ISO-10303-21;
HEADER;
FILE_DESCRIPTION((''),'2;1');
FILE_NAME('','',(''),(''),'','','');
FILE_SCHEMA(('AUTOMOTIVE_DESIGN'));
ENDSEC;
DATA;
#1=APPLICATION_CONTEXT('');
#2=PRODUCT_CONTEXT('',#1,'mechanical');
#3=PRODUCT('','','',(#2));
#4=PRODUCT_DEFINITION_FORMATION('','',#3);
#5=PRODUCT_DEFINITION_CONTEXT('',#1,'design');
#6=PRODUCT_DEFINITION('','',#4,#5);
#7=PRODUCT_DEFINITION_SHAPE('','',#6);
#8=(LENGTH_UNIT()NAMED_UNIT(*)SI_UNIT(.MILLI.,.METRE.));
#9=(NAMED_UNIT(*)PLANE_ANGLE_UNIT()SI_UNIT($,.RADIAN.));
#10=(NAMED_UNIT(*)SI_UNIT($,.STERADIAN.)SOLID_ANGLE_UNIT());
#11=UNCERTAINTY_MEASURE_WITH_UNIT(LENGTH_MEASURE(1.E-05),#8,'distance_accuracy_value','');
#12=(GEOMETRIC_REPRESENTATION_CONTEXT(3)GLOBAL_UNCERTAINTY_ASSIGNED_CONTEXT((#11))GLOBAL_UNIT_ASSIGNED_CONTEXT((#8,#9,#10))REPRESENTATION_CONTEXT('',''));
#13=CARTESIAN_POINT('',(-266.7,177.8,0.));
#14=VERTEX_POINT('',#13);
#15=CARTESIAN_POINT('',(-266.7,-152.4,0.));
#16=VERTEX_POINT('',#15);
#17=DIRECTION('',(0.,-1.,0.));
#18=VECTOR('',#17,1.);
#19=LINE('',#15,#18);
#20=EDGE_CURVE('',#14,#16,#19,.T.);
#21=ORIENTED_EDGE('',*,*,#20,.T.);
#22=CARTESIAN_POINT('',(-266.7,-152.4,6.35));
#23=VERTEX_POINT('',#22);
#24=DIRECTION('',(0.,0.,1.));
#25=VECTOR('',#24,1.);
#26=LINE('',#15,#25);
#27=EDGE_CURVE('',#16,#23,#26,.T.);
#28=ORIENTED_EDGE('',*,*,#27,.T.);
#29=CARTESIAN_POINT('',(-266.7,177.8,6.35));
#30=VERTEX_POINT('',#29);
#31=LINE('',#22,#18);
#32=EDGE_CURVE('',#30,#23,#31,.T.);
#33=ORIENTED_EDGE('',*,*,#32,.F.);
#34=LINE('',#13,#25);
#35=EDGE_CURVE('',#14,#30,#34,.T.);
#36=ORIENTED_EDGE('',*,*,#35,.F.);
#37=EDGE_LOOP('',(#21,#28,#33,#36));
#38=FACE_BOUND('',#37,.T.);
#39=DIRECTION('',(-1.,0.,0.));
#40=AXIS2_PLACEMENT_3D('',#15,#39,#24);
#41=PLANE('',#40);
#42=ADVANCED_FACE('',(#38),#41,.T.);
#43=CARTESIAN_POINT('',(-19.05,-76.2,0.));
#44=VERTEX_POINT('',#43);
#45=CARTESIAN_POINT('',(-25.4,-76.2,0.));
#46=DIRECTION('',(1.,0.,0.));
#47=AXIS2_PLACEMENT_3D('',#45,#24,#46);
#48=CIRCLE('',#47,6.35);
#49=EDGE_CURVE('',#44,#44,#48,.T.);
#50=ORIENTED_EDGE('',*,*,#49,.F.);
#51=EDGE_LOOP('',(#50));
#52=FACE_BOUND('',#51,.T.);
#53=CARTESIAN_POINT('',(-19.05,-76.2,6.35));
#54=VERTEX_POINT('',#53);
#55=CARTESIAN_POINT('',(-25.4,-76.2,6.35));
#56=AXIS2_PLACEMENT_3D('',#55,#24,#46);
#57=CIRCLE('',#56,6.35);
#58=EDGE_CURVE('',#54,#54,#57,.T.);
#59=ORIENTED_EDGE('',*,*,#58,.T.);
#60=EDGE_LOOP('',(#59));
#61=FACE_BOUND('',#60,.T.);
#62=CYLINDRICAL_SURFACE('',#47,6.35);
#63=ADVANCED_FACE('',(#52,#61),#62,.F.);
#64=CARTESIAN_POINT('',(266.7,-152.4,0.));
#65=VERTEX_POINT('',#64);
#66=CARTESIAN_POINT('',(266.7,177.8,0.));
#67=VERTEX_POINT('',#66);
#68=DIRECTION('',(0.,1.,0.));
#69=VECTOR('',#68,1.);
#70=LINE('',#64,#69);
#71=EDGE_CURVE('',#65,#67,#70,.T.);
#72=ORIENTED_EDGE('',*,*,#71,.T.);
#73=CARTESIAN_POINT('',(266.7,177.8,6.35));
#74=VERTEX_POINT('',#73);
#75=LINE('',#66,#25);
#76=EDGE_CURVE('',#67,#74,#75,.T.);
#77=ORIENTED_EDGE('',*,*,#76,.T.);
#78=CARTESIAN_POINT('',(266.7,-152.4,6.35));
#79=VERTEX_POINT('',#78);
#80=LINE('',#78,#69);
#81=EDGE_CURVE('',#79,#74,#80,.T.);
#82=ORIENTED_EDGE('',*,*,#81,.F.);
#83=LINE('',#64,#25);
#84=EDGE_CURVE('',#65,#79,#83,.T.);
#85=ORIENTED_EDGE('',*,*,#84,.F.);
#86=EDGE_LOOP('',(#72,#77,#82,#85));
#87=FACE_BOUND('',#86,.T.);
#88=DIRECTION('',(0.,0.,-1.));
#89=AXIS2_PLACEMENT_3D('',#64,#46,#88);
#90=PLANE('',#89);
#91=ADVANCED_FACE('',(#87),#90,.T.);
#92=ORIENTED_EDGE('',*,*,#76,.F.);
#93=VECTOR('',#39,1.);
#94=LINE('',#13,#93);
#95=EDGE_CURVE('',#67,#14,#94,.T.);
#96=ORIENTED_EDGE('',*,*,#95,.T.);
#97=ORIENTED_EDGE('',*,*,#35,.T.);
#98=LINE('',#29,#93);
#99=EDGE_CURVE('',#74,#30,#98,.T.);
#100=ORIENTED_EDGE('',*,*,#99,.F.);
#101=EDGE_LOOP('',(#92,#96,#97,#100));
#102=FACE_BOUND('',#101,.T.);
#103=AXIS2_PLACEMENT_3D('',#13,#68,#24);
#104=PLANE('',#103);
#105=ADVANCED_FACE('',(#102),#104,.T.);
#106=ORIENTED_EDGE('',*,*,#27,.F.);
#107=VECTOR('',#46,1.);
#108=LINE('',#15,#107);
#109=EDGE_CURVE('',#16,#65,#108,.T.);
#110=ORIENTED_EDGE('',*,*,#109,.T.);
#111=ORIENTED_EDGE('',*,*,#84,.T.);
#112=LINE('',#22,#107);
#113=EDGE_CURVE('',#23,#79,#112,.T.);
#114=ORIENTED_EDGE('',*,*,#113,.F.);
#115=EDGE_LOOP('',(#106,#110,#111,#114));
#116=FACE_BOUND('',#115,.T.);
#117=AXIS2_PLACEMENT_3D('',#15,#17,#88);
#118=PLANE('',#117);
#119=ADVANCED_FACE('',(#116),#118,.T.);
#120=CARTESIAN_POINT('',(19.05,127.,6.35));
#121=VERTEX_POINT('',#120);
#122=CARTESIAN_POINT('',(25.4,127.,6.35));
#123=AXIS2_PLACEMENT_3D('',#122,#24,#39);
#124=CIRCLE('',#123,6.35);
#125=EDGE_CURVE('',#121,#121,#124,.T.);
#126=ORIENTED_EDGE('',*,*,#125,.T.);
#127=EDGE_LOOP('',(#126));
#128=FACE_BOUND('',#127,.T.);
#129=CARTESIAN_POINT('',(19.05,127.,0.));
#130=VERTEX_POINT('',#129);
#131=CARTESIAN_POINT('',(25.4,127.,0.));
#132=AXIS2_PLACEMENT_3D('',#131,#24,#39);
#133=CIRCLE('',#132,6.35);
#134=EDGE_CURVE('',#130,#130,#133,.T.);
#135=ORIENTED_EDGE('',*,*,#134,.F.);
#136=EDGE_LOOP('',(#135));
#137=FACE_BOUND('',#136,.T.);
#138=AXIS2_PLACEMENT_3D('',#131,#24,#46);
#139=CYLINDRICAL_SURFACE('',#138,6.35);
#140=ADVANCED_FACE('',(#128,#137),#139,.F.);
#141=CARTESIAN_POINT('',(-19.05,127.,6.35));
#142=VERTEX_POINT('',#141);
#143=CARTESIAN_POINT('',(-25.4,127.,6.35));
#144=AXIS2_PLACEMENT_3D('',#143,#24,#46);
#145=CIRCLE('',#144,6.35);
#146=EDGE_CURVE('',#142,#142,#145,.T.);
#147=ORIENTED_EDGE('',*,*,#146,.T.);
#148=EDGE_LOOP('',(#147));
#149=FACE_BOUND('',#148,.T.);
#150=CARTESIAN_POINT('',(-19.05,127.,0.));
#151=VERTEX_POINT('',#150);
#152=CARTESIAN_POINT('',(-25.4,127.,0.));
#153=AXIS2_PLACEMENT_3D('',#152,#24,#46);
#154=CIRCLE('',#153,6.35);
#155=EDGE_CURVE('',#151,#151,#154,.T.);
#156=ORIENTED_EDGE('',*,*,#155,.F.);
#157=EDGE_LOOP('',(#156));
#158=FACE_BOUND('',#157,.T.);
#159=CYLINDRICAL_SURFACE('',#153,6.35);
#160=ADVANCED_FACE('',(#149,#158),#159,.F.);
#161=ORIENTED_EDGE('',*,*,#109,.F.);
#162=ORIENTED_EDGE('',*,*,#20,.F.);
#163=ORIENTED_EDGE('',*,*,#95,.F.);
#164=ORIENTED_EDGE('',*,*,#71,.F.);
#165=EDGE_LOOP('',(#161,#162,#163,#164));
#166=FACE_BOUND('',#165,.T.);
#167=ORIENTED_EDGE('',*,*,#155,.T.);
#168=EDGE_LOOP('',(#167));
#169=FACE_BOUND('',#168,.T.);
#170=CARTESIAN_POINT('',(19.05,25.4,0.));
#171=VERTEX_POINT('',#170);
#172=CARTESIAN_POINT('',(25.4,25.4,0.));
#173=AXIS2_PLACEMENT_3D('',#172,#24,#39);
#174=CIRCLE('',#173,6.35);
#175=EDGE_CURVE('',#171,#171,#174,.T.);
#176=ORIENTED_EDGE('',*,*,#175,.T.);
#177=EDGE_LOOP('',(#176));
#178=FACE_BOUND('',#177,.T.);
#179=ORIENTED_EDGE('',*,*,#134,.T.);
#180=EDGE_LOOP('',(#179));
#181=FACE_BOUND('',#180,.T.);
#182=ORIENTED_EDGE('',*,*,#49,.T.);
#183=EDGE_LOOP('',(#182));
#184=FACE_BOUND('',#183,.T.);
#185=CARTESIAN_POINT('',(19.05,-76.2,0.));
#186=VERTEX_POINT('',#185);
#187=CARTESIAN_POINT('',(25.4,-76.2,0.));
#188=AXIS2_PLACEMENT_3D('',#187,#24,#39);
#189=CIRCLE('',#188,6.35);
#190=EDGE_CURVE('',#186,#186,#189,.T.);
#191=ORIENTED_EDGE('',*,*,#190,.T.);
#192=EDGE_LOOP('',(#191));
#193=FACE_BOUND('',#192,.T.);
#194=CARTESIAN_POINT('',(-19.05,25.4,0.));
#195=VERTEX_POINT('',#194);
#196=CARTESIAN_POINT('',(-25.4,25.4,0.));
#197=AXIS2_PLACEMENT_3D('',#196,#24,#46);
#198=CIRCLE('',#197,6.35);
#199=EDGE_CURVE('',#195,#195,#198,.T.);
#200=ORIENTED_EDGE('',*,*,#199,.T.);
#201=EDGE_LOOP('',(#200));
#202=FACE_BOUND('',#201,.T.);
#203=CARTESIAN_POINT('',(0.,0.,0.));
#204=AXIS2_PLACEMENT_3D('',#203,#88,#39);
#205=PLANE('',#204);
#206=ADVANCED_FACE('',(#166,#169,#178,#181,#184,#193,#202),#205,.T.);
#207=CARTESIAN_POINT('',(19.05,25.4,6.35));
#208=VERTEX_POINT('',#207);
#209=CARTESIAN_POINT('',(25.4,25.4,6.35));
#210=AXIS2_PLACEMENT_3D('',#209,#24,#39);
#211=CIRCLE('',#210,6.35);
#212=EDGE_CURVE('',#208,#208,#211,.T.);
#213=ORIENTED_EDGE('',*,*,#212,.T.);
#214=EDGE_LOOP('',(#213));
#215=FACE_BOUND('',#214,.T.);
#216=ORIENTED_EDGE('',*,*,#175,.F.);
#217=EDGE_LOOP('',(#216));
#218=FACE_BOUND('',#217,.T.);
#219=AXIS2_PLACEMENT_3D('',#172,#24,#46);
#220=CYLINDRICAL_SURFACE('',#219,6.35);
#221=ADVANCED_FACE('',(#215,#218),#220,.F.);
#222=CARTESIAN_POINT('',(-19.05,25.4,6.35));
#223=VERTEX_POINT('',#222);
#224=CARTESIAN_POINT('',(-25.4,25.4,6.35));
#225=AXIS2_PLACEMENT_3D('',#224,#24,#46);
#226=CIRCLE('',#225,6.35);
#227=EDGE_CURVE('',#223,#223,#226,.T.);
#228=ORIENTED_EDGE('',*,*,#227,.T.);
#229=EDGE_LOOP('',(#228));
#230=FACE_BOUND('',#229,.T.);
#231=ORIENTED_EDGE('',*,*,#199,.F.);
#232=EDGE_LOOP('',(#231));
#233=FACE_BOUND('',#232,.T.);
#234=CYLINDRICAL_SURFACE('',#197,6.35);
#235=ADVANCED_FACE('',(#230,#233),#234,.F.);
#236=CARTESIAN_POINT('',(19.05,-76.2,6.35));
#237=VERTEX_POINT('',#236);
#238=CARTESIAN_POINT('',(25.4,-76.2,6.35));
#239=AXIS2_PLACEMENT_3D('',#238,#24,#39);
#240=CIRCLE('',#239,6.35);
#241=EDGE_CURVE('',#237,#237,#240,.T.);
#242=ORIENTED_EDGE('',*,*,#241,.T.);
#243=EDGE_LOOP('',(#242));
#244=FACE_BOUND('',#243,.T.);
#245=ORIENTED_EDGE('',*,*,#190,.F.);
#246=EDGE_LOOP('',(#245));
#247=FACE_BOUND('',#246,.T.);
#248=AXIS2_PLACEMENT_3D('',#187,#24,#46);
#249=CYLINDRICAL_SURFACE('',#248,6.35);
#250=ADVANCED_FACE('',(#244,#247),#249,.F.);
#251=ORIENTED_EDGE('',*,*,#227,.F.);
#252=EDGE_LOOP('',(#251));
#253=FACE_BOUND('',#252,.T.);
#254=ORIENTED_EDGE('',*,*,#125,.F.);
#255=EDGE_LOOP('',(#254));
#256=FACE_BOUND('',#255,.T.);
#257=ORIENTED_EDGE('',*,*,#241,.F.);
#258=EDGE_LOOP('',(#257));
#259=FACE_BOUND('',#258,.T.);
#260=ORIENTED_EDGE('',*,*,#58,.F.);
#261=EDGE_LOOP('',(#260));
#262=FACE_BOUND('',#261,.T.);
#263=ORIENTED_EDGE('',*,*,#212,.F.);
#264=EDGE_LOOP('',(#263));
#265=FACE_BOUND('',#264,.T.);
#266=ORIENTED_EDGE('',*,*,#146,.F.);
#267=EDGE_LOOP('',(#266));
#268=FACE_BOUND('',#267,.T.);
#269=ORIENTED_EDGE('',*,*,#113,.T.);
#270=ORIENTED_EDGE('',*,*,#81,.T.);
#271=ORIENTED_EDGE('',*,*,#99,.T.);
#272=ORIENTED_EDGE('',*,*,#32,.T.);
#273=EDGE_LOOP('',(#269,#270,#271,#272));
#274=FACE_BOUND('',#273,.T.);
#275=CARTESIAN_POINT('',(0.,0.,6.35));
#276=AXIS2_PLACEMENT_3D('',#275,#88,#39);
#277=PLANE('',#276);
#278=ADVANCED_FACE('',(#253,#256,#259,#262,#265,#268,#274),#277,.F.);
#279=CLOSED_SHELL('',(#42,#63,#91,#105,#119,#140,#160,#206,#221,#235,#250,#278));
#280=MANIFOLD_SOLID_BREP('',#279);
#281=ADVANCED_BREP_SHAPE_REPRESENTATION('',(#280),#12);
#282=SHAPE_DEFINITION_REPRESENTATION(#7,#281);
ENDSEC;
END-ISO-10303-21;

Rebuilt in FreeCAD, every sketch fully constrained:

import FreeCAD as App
import Part
import Sketcher
from FreeCAD import Vector
Q = App.Units.Quantity

doc = App.newDocument("Part")
body = doc.addObject("PartDesign::Body", "Body")

# Sketch on XY plane
sketch1 = doc.addObject("Sketcher::SketchObject", "Sketch")
body.addObject(sketch1)
sketch1.AttachmentSupport = (doc.XY_Plane, [""])
sketch1.MapMode = "FlatFace"
sketch1.addGeometry(Part.LineSegment(Vector(-127, 76, 0), Vector(-127, -76, 0)), False)
sketch1.addGeometry(Part.LineSegment(Vector(-127, -76, 0), Vector(127, -76, 0)), False)
sketch1.addGeometry(Part.LineSegment(Vector(127, -76, 0), Vector(127, 76, 0)), False)
sketch1.addGeometry(Part.LineSegment(Vector(127, 76, 0), Vector(-127, 76, 0)), False)
sketch1.addGeometry(Part.Circle(Vector(0, 0, 0), Vector(0, 0, 1), 53), False)
sketch1.addConstraint(Sketcher.Constraint("Coincident", 0, 2, 1, 1))
sketch1.addConstraint(Sketcher.Constraint("Coincident", 1, 2, 2, 1))
sketch1.addConstraint(Sketcher.Constraint("Coincident", 2, 2, 3, 1))
sketch1.addConstraint(Sketcher.Constraint("Coincident", 3, 2, 0, 1))
sketch1.addConstraint(Sketcher.Constraint("Vertical", 0))
sketch1.addConstraint(Sketcher.Constraint("Horizontal", 1))
sketch1.addConstraint(Sketcher.Constraint("Vertical", 2))
sketch1.addConstraint(Sketcher.Constraint("Horizontal", 3))
sketch1.addConstraint(Sketcher.Constraint("Coincident", 4, 3, -1, 1))
sketch1.addConstraint(Sketcher.Constraint("Symmetric", 0, 2, 2, 2, -1, 1))
sketch1.addConstraint(Sketcher.Constraint("Diameter", 4, Q("4.2 in")))
sketch1.addConstraint(Sketcher.Constraint("DistanceX", 1, 1, 1, 2, Q("10 in")))
sketch1.addConstraint(Sketcher.Constraint("DistanceY", 0, 2, 0, 1, Q("6 in")))
pad1 = doc.addObject("PartDesign::Pad", "Pad")
body.addObject(pad1)
pad1.Profile = sketch1
pad1.Length = Q("0.25 in")

# Sketch on XY plane
sketch2 = doc.addObject("Sketcher::SketchObject", "Sketch001")
body.addObject(sketch2)
sketch2.AttachmentSupport = (doc.XY_Plane, [""])
sketch2.MapMode = "FlatFace"
sketch2.addGeometry(Part.Circle(Vector(0, 0, 0), Vector(0, 0, 1), 53), False)
sketch2.addConstraint(Sketcher.Constraint("Coincident", 0, 3, -1, 1))
sketch2.addConstraint(Sketcher.Constraint("Diameter", 0, Q("4.2 in")))
pad2 = doc.addObject("PartDesign::Pad", "Pad001")
body.addObject(pad2)
pad2.Profile = sketch2
pad2.Length = Q("0.25 in")

# Sketch on XY plane
sketch3 = doc.addObject("Sketcher::SketchObject", "Sketch002")
body.addObject(sketch3)
sketch3.AttachmentSupport = (doc.XY_Plane, [""])
sketch3.MapMode = "FlatFace"
sketch3.AttachmentOffset = App.Placement(Vector(0, 0, 0.25 * 25.4), App.Rotation())
sketch3.addGeometry(Part.LineSegment(Vector(-216, 152, 0), Vector(-216, -127, 0)), False)
sketch3.addGeometry(Part.LineSegment(Vector(-216, -127, 0), Vector(216, -127, 0)), False)
sketch3.addGeometry(Part.LineSegment(Vector(216, -127, 0), Vector(216, 152, 0)), False)
sketch3.addGeometry(Part.LineSegment(Vector(216, 152, 0), Vector(-216, 152, 0)), False)
sketch3.addGeometry(Part.LineSegment(Vector(127, -76, 0), Vector(-127, -76, 0)), False)
sketch3.addGeometry(Part.LineSegment(Vector(-127, -76, 0), Vector(-127, 76, 0)), False)
sketch3.addGeometry(Part.LineSegment(Vector(-127, 76, 0), Vector(127, 76, 0)), False)
sketch3.addGeometry(Part.LineSegment(Vector(127, 76, 0), Vector(127, -76, 0)), False)
sketch3.addConstraint(Sketcher.Constraint("Coincident", 0, 2, 1, 1))
sketch3.addConstraint(Sketcher.Constraint("Coincident", 1, 2, 2, 1))
sketch3.addConstraint(Sketcher.Constraint("Coincident", 2, 2, 3, 1))
sketch3.addConstraint(Sketcher.Constraint("Coincident", 3, 2, 0, 1))
sketch3.addConstraint(Sketcher.Constraint("Coincident", 4, 2, 5, 1))
sketch3.addConstraint(Sketcher.Constraint("Coincident", 5, 2, 6, 1))
sketch3.addConstraint(Sketcher.Constraint("Coincident", 6, 2, 7, 1))
sketch3.addConstraint(Sketcher.Constraint("Coincident", 7, 2, 4, 1))
sketch3.addConstraint(Sketcher.Constraint("Vertical", 0))
sketch3.addConstraint(Sketcher.Constraint("Horizontal", 1))
sketch3.addConstraint(Sketcher.Constraint("Vertical", 2))
sketch3.addConstraint(Sketcher.Constraint("Horizontal", 3))
sketch3.addConstraint(Sketcher.Constraint("Horizontal", 4))
sketch3.addConstraint(Sketcher.Constraint("Vertical", 5))
sketch3.addConstraint(Sketcher.Constraint("Horizontal", 6))
sketch3.addConstraint(Sketcher.Constraint("Vertical", 7))
sketch3.addConstraint(Sketcher.Constraint("Symmetric", 4, 2, 6, 2, -1, 1))
sketch3.addConstraint(Sketcher.Constraint("DistanceX", 1, 1, 1, 2, Q("17 in")))
sketch3.addConstraint(Sketcher.Constraint("DistanceX", 4, 2, 4, 1, Q("10 in")))
sketch3.addConstraint(Sketcher.Constraint("DistanceY", 0, 2, 0, 1, Q("11 in")))
sketch3.addConstraint(Sketcher.Constraint("DistanceY", 5, 1, 5, 2, Q("6 in")))
sketch3.addConstraint(Sketcher.Constraint("DistanceY", 0, 2, -1, 1, Q("5 in")))
sketch3.addConstraint(Sketcher.Constraint("DistanceX", 0, 2, -1, 1, Q("8.5 in")))
pad3 = doc.addObject("PartDesign::Pad", "Pad002")
body.addObject(pad3)
pad3.Profile = sketch3
pad3.Length = Q("0.25 in")
pad3.Reversed = True

# Sketch on XY plane
sketch4 = doc.addObject("Sketcher::SketchObject", "Sketch003")
body.addObject(sketch4)
sketch4.AttachmentSupport = (doc.XY_Plane, [""])
sketch4.MapMode = "FlatFace"
sketch4.AttachmentOffset = App.Placement(Vector(0, 0, 0.25 * 25.4), App.Rotation())
sketch4.addGeometry(Part.Circle(Vector(-25, 127, 0), Vector(0, 0, 1), 6), False)
sketch4.addGeometry(Part.Circle(Vector(-25, 25, 0), Vector(0, 0, 1), 6), False)
sketch4.addGeometry(Part.Circle(Vector(25, 25, 0), Vector(0, 0, 1), 6), False)
sketch4.addGeometry(Part.Circle(Vector(25, 127, 0), Vector(0, 0, 1), 6), False)
sketch4.addGeometry(Part.Circle(Vector(-25, -76, 0), Vector(0, 0, 1), 6), False)
sketch4.addGeometry(Part.Circle(Vector(25, -76, 0), Vector(0, 0, 1), 6), False)
sketch4.addConstraint(Sketcher.Constraint("Equal", 0, 1))
sketch4.addConstraint(Sketcher.Constraint("Equal", 1, 2))
sketch4.addConstraint(Sketcher.Constraint("Equal", 2, 3))
sketch4.addConstraint(Sketcher.Constraint("Equal", 3, 4))
sketch4.addConstraint(Sketcher.Constraint("Equal", 4, 5))
sketch4.addConstraint(Sketcher.Constraint("Symmetric", 1, 3, 2, 3, -2))
sketch4.addConstraint(Sketcher.Constraint("Symmetric", 0, 3, 3, 3, -2))
sketch4.addConstraint(Sketcher.Constraint("Symmetric", 4, 3, 5, 3, -2))
sketch4.addConstraint(Sketcher.Constraint("Vertical", 0, 3, 1, 3))
sketch4.addConstraint(Sketcher.Constraint("Vertical", 1, 3, 4, 3))
sketch4.addConstraint(Sketcher.Constraint("Diameter", 0, Q("0.5 in")))
sketch4.addConstraint(Sketcher.Constraint("DistanceX", 0, 3, -1, 1, Q("1 in")))
sketch4.addConstraint(Sketcher.Constraint("DistanceY", -1, 1, 0, 3, Q("5 in")))
sketch4.addConstraint(Sketcher.Constraint("DistanceY", -1, 1, 1, 3, Q("1 in")))
sketch4.addConstraint(Sketcher.Constraint("DistanceY", 4, 3, -1, 1, Q("3 in")))
pocket1 = doc.addObject("PartDesign::Pocket", "Pocket")
body.addObject(pocket1)
pocket1.Profile = sketch4
pocket1.Type = "ThroughAll"

# Sketch on XY plane
sketch5 = doc.addObject("Sketcher::SketchObject", "Sketch004")
body.addObject(sketch5)
sketch5.AttachmentSupport = (doc.XY_Plane, [""])
sketch5.MapMode = "FlatFace"
sketch5.AttachmentOffset = App.Placement(Vector(0, 0, 0.25 * 25.4), App.Rotation())
sketch5.addGeometry(Part.LineSegment(Vector(-267, 178, 0), Vector(-267, -152, 0)), False)
sketch5.addGeometry(Part.LineSegment(Vector(-267, -152, 0), Vector(267, -152, 0)), False)
sketch5.addGeometry(Part.LineSegment(Vector(267, -152, 0), Vector(267, 178, 0)), False)
sketch5.addGeometry(Part.LineSegment(Vector(267, 178, 0), Vector(-267, 178, 0)), False)
sketch5.addGeometry(Part.LineSegment(Vector(216, -127, 0), Vector(-216, -127, 0)), False)
sketch5.addGeometry(Part.LineSegment(Vector(-216, -127, 0), Vector(-216, 152, 0)), False)
sketch5.addGeometry(Part.LineSegment(Vector(-216, 152, 0), Vector(216, 152, 0)), False)
sketch5.addGeometry(Part.LineSegment(Vector(216, 152, 0), Vector(216, -127, 0)), False)
sketch5.addConstraint(Sketcher.Constraint("Coincident", 0, 2, 1, 1))
sketch5.addConstraint(Sketcher.Constraint("Coincident", 1, 2, 2, 1))
sketch5.addConstraint(Sketcher.Constraint("Coincident", 2, 2, 3, 1))
sketch5.addConstraint(Sketcher.Constraint("Coincident", 3, 2, 0, 1))
sketch5.addConstraint(Sketcher.Constraint("Coincident", 4, 2, 5, 1))
sketch5.addConstraint(Sketcher.Constraint("Coincident", 5, 2, 6, 1))
sketch5.addConstraint(Sketcher.Constraint("Coincident", 6, 2, 7, 1))
sketch5.addConstraint(Sketcher.Constraint("Coincident", 7, 2, 4, 1))
sketch5.addConstraint(Sketcher.Constraint("Vertical", 0))
sketch5.addConstraint(Sketcher.Constraint("Horizontal", 1))
sketch5.addConstraint(Sketcher.Constraint("Vertical", 2))
sketch5.addConstraint(Sketcher.Constraint("Horizontal", 3))
sketch5.addConstraint(Sketcher.Constraint("Horizontal", 4))
sketch5.addConstraint(Sketcher.Constraint("Vertical", 5))
sketch5.addConstraint(Sketcher.Constraint("Horizontal", 6))
sketch5.addConstraint(Sketcher.Constraint("Vertical", 7))
sketch5.addConstraint(Sketcher.Constraint("DistanceX", 1, 1, 1, 2, Q("21 in")))
sketch5.addConstraint(Sketcher.Constraint("DistanceX", 4, 2, 4, 1, Q("17 in")))
sketch5.addConstraint(Sketcher.Constraint("DistanceY", 0, 2, 0, 1, Q("13 in")))
sketch5.addConstraint(Sketcher.Constraint("DistanceY", 5, 1, 5, 2, Q("11 in")))
sketch5.addConstraint(Sketcher.Constraint("DistanceY", 0, 2, -1, 1, Q("6 in")))
sketch5.addConstraint(Sketcher.Constraint("DistanceY", 4, 2, -1, 1, Q("5 in")))
sketch5.addConstraint(Sketcher.Constraint("DistanceX", 0, 2, 4, 2, Q("2 in")))
sketch5.addConstraint(Sketcher.Constraint("DistanceX", 0, 2, -1, 1, Q("10.5 in")))
pad4 = doc.addObject("PartDesign::Pad", "Pad003")
body.addObject(pad4)
pad4.Profile = sketch5
pad4.Length = Q("0.25 in")
pad4.Reversed = True

doc.recompute()
